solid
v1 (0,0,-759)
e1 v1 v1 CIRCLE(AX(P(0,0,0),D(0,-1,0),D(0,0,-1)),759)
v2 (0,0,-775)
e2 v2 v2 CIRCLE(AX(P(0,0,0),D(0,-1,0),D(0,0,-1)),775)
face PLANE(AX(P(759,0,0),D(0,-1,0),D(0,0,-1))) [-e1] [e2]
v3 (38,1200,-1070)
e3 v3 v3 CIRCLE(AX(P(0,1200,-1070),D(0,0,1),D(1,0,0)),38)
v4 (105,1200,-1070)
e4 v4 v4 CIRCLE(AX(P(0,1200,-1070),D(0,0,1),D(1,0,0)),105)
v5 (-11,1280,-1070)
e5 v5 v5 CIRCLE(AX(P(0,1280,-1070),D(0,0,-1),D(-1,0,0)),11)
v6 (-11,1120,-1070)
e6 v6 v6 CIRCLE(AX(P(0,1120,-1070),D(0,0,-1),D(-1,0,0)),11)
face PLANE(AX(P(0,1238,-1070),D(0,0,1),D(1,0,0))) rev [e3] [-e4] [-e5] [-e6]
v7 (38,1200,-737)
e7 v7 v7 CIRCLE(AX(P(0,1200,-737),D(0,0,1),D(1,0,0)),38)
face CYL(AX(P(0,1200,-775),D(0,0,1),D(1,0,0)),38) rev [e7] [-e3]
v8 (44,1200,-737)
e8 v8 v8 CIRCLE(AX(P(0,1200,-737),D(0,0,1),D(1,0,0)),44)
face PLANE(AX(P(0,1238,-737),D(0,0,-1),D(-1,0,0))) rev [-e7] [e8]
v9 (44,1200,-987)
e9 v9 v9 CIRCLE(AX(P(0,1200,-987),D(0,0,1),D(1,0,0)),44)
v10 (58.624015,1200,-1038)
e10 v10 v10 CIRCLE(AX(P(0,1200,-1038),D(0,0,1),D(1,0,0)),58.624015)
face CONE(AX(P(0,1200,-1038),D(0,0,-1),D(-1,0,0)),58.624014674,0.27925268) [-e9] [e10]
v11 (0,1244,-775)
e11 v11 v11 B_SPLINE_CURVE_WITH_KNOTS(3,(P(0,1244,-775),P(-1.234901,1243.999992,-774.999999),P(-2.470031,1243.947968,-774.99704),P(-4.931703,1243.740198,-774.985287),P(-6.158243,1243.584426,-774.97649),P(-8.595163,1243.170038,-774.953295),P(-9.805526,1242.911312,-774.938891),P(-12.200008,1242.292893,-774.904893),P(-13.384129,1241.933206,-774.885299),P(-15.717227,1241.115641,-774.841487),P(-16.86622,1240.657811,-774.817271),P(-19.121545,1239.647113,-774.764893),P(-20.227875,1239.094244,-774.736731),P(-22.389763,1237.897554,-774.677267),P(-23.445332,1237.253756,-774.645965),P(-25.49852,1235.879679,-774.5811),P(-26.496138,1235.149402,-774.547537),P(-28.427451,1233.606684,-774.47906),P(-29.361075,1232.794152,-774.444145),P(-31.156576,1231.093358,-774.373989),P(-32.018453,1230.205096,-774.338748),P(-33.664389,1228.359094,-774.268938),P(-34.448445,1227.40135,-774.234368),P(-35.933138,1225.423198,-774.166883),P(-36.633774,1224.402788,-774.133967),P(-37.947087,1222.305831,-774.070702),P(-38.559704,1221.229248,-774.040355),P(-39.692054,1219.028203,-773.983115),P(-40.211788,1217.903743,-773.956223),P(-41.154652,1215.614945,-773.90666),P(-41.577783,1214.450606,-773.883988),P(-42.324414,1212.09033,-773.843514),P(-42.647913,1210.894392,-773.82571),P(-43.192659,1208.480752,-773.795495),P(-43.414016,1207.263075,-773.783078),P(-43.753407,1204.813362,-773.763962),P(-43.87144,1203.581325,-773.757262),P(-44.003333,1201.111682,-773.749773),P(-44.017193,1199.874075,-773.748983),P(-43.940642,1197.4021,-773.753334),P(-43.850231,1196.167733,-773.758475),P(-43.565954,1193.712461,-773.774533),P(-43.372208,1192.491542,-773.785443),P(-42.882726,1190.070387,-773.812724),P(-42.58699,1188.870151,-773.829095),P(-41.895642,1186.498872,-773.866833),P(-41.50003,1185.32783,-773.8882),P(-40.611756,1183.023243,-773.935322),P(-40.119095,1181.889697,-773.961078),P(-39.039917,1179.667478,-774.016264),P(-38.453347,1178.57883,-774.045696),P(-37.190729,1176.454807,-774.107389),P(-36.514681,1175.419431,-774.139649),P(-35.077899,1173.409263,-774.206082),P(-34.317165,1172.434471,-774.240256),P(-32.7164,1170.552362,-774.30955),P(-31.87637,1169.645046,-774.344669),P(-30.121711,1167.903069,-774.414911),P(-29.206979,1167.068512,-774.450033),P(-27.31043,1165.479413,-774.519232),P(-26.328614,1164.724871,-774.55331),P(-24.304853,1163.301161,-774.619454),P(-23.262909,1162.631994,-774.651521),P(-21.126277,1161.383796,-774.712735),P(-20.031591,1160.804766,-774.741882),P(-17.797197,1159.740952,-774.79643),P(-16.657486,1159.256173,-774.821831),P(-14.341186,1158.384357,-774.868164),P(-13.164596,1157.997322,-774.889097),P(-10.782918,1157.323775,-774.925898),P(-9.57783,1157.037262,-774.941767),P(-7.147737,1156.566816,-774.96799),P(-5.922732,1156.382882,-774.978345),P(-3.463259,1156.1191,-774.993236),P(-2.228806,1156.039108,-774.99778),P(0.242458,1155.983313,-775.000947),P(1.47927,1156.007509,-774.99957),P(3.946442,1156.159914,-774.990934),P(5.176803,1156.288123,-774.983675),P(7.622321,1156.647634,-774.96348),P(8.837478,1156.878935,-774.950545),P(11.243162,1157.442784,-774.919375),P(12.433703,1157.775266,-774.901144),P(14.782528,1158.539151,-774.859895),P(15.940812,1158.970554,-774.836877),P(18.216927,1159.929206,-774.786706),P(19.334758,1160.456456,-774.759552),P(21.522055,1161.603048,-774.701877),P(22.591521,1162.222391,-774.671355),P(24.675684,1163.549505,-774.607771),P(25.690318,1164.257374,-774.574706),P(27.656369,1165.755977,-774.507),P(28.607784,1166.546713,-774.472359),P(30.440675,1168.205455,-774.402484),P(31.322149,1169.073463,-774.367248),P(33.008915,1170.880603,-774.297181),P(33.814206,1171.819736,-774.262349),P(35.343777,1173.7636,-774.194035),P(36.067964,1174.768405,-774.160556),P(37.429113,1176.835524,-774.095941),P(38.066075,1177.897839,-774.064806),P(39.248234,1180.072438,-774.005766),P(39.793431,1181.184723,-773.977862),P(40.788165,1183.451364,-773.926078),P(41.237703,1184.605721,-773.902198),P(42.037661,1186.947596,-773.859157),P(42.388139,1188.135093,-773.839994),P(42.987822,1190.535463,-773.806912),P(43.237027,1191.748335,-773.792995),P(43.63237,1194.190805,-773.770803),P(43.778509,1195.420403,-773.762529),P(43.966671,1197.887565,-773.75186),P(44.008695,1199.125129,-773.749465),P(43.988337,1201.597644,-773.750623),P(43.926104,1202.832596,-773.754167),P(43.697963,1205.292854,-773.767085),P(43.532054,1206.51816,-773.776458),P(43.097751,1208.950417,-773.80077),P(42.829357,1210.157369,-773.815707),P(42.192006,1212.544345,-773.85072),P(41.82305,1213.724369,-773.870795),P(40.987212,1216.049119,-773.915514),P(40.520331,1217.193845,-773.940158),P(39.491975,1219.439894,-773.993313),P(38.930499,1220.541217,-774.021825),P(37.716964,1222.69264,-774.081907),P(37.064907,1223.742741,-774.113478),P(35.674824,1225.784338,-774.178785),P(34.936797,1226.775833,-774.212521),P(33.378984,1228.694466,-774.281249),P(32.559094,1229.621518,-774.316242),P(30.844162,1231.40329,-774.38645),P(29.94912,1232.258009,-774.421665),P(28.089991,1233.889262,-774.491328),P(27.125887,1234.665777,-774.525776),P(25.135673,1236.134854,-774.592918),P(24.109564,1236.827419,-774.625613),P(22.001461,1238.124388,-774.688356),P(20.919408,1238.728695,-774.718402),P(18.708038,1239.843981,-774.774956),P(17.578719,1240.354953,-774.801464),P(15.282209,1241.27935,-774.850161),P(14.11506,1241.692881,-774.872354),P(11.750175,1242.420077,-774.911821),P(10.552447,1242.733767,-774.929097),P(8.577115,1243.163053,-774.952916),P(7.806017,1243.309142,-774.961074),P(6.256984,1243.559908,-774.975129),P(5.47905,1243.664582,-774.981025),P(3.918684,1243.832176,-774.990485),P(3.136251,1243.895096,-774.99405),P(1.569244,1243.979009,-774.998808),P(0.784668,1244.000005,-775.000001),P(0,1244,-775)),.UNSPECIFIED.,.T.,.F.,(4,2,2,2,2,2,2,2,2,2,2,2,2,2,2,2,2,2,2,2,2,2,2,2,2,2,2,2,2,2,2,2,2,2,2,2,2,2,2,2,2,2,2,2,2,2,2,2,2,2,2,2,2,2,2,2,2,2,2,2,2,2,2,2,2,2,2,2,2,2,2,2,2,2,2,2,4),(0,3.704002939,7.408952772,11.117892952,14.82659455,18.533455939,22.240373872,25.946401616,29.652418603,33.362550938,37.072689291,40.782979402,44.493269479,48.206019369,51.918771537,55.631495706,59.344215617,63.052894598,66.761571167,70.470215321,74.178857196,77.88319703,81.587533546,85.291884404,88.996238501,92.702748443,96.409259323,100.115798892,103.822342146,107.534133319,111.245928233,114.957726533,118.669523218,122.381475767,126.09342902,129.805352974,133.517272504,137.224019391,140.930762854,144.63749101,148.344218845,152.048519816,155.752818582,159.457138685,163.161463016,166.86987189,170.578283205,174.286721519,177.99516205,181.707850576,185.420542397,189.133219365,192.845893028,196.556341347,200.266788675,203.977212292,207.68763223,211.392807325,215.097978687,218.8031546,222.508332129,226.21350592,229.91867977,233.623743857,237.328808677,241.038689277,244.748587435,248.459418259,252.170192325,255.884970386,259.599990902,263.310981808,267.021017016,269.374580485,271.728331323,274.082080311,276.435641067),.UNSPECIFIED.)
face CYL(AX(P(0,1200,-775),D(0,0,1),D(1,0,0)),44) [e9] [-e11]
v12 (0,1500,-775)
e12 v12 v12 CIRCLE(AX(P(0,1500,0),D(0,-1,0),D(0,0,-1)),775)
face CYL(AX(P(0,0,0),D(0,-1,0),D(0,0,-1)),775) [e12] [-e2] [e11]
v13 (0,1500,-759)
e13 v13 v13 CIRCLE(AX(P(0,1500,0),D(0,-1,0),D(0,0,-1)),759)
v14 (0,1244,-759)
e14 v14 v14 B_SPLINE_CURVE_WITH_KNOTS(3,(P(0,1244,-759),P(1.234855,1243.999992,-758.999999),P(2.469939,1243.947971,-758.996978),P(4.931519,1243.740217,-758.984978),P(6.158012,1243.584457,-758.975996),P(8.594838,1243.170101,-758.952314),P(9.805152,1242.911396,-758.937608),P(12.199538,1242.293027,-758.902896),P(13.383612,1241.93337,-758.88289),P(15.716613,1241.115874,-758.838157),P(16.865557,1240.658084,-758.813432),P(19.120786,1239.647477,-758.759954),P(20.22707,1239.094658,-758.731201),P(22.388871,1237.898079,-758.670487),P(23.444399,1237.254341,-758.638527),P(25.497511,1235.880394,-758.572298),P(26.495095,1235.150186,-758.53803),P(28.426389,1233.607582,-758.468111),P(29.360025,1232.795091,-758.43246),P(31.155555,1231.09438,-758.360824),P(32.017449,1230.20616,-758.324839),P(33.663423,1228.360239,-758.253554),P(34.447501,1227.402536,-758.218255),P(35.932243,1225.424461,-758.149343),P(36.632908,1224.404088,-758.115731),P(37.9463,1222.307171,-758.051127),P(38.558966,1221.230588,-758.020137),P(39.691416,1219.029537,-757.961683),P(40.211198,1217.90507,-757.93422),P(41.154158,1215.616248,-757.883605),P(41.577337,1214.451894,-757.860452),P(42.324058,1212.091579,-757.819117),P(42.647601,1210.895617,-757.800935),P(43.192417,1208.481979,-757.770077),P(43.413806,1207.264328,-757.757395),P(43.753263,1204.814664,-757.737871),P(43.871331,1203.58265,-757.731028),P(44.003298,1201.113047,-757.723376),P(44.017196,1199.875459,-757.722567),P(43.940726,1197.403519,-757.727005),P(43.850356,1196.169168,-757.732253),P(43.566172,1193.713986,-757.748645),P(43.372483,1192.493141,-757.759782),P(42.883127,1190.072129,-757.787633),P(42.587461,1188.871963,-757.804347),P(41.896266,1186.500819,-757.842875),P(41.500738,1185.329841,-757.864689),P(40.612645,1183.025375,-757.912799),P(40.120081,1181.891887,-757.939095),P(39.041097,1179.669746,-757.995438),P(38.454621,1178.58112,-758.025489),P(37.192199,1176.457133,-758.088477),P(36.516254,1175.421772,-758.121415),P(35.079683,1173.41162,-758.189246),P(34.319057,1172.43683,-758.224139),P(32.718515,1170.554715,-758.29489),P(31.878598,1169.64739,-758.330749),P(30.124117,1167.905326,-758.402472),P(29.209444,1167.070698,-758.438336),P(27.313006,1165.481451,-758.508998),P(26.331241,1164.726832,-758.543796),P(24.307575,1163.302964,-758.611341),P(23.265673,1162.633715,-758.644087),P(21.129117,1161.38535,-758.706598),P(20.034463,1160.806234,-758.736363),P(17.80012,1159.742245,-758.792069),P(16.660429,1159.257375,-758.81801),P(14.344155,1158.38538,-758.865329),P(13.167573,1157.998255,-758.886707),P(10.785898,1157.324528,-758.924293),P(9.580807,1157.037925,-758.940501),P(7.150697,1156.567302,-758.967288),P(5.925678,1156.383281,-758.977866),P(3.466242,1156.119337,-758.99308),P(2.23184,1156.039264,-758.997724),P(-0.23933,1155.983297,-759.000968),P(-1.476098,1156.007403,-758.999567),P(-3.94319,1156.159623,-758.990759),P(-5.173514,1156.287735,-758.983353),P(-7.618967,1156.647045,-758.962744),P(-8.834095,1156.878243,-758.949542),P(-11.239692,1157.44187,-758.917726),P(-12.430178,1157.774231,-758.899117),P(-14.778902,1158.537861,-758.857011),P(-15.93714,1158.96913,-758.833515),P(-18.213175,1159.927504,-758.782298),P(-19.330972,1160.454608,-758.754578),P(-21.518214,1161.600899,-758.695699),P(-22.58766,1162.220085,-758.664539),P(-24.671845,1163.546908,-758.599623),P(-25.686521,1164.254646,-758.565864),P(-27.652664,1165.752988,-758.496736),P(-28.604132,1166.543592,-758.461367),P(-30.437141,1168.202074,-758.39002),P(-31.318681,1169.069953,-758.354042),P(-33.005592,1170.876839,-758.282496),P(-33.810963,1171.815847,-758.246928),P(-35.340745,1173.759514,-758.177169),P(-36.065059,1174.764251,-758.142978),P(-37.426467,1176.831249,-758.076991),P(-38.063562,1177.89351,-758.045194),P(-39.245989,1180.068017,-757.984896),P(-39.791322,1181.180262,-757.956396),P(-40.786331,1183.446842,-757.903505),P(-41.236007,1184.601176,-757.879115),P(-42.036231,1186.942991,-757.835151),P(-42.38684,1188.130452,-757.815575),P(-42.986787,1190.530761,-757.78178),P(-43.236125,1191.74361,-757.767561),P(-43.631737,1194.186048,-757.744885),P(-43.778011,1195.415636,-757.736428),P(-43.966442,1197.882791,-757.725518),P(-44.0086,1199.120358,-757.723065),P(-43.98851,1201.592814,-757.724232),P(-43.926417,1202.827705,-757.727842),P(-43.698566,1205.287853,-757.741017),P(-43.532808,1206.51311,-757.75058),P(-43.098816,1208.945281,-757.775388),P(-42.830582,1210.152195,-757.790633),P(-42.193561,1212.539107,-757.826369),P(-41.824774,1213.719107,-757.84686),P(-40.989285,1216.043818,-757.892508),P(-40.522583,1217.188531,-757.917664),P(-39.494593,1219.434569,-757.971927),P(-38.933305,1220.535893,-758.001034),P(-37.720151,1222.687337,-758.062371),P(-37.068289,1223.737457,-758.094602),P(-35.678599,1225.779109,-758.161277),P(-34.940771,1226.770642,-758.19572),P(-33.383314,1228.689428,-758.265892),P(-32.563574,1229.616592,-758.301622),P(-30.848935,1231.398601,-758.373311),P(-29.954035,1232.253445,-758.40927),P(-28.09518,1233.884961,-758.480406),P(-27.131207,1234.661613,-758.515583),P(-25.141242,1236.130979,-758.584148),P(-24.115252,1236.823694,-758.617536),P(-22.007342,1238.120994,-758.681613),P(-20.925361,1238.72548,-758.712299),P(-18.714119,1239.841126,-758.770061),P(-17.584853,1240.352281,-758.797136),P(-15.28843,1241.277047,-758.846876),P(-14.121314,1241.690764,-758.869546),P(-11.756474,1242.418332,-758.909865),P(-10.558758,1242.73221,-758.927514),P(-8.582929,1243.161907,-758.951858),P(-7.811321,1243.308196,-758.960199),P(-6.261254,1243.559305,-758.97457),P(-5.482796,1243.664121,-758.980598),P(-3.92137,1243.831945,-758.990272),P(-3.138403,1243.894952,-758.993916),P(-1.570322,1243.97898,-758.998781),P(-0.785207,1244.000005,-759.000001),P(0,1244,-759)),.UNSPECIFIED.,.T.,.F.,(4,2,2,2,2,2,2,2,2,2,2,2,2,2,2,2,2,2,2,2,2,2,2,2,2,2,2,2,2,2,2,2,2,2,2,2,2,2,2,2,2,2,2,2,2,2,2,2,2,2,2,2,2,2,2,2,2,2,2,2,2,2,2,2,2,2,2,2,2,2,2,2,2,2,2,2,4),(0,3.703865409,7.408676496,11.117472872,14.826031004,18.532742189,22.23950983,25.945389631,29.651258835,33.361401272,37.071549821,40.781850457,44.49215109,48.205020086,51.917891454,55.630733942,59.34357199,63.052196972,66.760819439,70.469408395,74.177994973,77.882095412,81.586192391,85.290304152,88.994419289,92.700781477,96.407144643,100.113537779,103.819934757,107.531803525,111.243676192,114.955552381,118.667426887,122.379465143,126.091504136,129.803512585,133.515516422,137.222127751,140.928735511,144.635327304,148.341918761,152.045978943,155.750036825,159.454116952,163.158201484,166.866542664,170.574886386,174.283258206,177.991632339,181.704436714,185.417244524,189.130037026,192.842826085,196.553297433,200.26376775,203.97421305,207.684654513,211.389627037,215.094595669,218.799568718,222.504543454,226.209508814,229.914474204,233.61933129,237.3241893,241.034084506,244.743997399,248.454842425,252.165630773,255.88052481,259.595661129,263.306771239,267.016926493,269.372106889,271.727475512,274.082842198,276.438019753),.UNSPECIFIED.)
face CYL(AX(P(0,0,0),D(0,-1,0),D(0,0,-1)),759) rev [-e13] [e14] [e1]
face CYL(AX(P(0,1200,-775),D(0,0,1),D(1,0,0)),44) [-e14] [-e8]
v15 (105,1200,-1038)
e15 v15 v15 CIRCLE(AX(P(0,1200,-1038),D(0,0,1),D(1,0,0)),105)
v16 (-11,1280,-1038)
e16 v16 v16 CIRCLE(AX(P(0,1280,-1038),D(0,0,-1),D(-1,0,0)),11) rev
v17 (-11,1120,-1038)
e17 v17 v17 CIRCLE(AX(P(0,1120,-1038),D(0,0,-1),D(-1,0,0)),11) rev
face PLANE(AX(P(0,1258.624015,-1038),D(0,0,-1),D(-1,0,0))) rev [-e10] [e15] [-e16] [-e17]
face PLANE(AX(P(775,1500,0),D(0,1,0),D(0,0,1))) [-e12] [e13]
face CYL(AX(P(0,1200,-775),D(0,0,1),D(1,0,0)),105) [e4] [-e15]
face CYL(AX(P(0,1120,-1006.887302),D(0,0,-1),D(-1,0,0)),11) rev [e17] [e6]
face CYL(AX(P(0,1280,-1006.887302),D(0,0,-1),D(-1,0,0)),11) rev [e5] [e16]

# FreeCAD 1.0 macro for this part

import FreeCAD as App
import Part
import Sketcher
Q = App.Units.Quantity

doc = App.newDocument("Part")
params = doc.addObject("Spreadsheet::Sheet", "Params")
for row, (alias, value) in enumerate([
    ("sketch1_width", "16 mm"),
    ("sketch1_height", "1500 mm"),
    ("revolution_angle", "360 deg"),
    ("sketch2_width", "67 mm"),
    ("sketch2_width2", "6 mm"),
    ("sketch2_height", "333 mm"),
    ("sketch2_height2", "32 mm"),
    ("sketch2_height3", "250 mm"),
    ("revolution2_angle", "360 deg"),
    ("sketch3_diameter", "22 mm"),
    ("pocket1_length", "32 mm"),
    ("sketch4_diameter", "76 mm"),
    ("pocket2_length", "400 mm"),
], start=1):
    params.set(f"A{row}", alias)
    params.set(f"B{row}", "=" + value)
    params.setAlias(f"B{row}", alias)

body = doc.addObject("PartDesign::Body", "Body")

# Sketch on XY plane
sketch1 = body.newObject("Sketcher::SketchObject", "Sketch")
sketch1.AttachmentSupport = (doc.getObject("XY_Plane"), [""])
sketch1.MapMode = "FlatFace"
sketch1.addGeometry([
    Part.LineSegment(App.Vector(759, 1500, 0), App.Vector(759, 0, 0)),
    Part.LineSegment(App.Vector(759, 0, 0), App.Vector(775, 0, 0)),
    Part.LineSegment(App.Vector(775, 0, 0), App.Vector(775, 1500, 0)),
    Part.LineSegment(App.Vector(775, 1500, 0), App.Vector(759, 1500, 0)),
], False)
sketch1.addConstraint([
    Sketcher.Constraint("Coincident", 0, 2, 1, 1),
    Sketcher.Constraint("Coincident", 1, 2, 2, 1),
    Sketcher.Constraint("Coincident", 2, 2, 3, 1),
    Sketcher.Constraint("Coincident", 3, 2, 0, 1),
    Sketcher.Constraint("Vertical", 0),
    Sketcher.Constraint("Horizontal", 1),
    Sketcher.Constraint("Vertical", 2),
    Sketcher.Constraint("Horizontal", 3),
    Sketcher.Constraint("PointOnObject", 0, 2, -1),
    Sketcher.Constraint("DistanceX", 1, 1, 1, 2, 16.0),
    Sketcher.Constraint("DistanceY", 0, 2, 0, 1, 1500.0),
    Sketcher.Constraint("DistanceX", -1, 1, 0, 2, 759.0),
])
sketch1.setExpression("Constraints[9]", "Params.sketch1_width")
sketch1.setExpression("Constraints[10]", "Params.sketch1_height")
revolution = body.newObject("PartDesign::Revolution", "Revolution")
revolution.Profile = sketch1
revolution.ReferenceAxis = (sketch1, ["V_Axis"])
revolution.setExpression("Angle", "Params.revolution_angle")

# Sketch on YZ plane
sketch2 = body.newObject("Sketcher::SketchObject", "Sketch001")
sketch2.AttachmentSupport = (doc.getObject("YZ_Plane"), [""])
sketch2.MapMode = "FlatFace"
sketch2.addGeometry([
    Part.LineSegment(App.Vector(1238, -737, 0), App.Vector(1238, -1070, 0)),  # 0
    Part.LineSegment(App.Vector(1238, -1070, 0), App.Vector(1305, -1070, 0)),  # 1
    Part.LineSegment(App.Vector(1305, -1070, 0), App.Vector(1305, -1038, 0)),  # 2
    Part.LineSegment(App.Vector(1305, -1038, 0), App.Vector(1259, -1038, 0)),  # 3
    Part.LineSegment(App.Vector(1259, -1038, 0), App.Vector(1244, -987, 0)),  # 4
    Part.LineSegment(App.Vector(1244, -987, 0), App.Vector(1244, -737, 0)),  # 5
    Part.LineSegment(App.Vector(1244, -737, 0), App.Vector(1238, -737, 0)),  # 6
], False)
sketch2.addGeometry(Part.LineSegment(App.Vector(1200, -737, 0), App.Vector(1200, -1070, 0)), True)  # axis
sketch2.addConstraint([
    Sketcher.Constraint("Coincident", 0, 2, 1, 1),
    Sketcher.Constraint("Coincident", 1, 2, 2, 1),
    Sketcher.Constraint("Coincident", 2, 2, 3, 1),
    Sketcher.Constraint("Coincident", 3, 2, 4, 1),
    Sketcher.Constraint("Coincident", 4, 2, 5, 1),
    Sketcher.Constraint("Coincident", 5, 2, 6, 1),
    Sketcher.Constraint("Coincident", 6, 2, 0, 1),
    Sketcher.Constraint("Vertical", 0),
    Sketcher.Constraint("Horizontal", 1),
    Sketcher.Constraint("Vertical", 2),
    Sketcher.Constraint("Horizontal", 3),
    Sketcher.Constraint("Vertical", 5),
    Sketcher.Constraint("Horizontal", 6),
    Sketcher.Constraint("Vertical", 7),
    Sketcher.Constraint("Horizontal", 6, 2, 7, 1),
    Sketcher.Constraint("Horizontal", 1, 2, 7, 2),
    Sketcher.Constraint("DistanceX", 1, 1, 1, 2, 67.0),
    Sketcher.Constraint("DistanceX", 6, 2, 6, 1, 6.0),
    Sketcher.Constraint("DistanceY", 0, 2, 0, 1, 333.0),
    Sketcher.Constraint("DistanceY", 2, 1, 2, 2, 32.0),
    Sketcher.Constraint("DistanceY", 5, 1, 5, 2, 250.0),
    Sketcher.Constraint("Angle", 4, Q("106 deg")),
    Sketcher.Constraint("DistanceX", -1, 1, 0, 2, 1238.0),
    Sketcher.Constraint("DistanceY", 0, 2, -1, 1, 1070.0),
    Sketcher.Constraint("DistanceX", -1, 1, 7, 1, 1200.0),
])
sketch2.setExpression("Constraints[16]", "Params.sketch2_width")
sketch2.setExpression("Constraints[17]", "Params.sketch2_width2")
sketch2.setExpression("Constraints[18]", "Params.sketch2_height")
sketch2.setExpression("Constraints[19]", "Params.sketch2_height2")
sketch2.setExpression("Constraints[20]", "Params.sketch2_height3")
revolution2 = body.newObject("PartDesign::Revolution", "Revolution001")
revolution2.Profile = sketch2
revolution2.ReferenceAxis = (sketch2, ["Axis0"])
revolution2.setExpression("Angle", "Params.revolution2_angle")

# Sketch on XY plane
sketch3 = body.newObject("Sketcher::SketchObject", "Sketch002")
sketch3.AttachmentSupport = (doc.getObject("XY_Plane"), [""])
sketch3.MapMode = "FlatFace"
sketch3.AttachmentOffset = App.Placement(App.Vector(0, 0, -1070), App.Rotation())
sketch3.addGeometry([
    Part.Circle(App.Vector(0, 1280, 0), App.Vector(0, 0, 1), 11),
    Part.Circle(App.Vector(0, 1120, 0), App.Vector(0, 0, 1), 11),
], False)
sketch3.addConstraint([
    Sketcher.Constraint("Equal", 0, 1),
    Sketcher.Constraint("PointOnObject", 0, 3, -2),
    Sketcher.Constraint("PointOnObject", 1, 3, -2),
    Sketcher.Constraint("Diameter", 0, 22.0),
    Sketcher.Constraint("DistanceY", -1, 1, 0, 3, 1280.0),
    Sketcher.Constraint("DistanceY", -1, 1, 1, 3, 1120.0),
])
sketch3.setExpression("Constraints[3]", "Params.sketch3_diameter")
pocket1 = body.newObject("PartDesign::Pocket", "Pocket")
pocket1.Profile = sketch3
pocket1.setExpression("Length", "Params.pocket1_length")
pocket1.Reversed = True

# Sketch on XY plane
sketch4 = body.newObject("Sketcher::SketchObject", "Sketch003")
sketch4.AttachmentSupport = (doc.getObject("XY_Plane"), [""])
sketch4.MapMode = "FlatFace"
sketch4.AttachmentOffset = App.Placement(App.Vector(0, 0, -670), App.Rotation())
sketch4.addGeometry(Part.Circle(App.Vector(0, 1200, 0), App.Vector(0, 0, 1), 38), False)
sketch4.addConstraint([
    Sketcher.Constraint("PointOnObject", 0, 3, -2),
    Sketcher.Constraint("Diameter", 0, 76.0),
    Sketcher.Constraint("DistanceY", -1, 1, 0, 3, 1200.0),
])
sketch4.setExpression("Constraints[1]", "Params.sketch4_diameter")
pocket2 = body.newObject("PartDesign::Pocket", "Pocket001")
pocket2.Profile = sketch4
pocket2.setExpression("Length", "Params.pocket2_length")

doc.recompute()
